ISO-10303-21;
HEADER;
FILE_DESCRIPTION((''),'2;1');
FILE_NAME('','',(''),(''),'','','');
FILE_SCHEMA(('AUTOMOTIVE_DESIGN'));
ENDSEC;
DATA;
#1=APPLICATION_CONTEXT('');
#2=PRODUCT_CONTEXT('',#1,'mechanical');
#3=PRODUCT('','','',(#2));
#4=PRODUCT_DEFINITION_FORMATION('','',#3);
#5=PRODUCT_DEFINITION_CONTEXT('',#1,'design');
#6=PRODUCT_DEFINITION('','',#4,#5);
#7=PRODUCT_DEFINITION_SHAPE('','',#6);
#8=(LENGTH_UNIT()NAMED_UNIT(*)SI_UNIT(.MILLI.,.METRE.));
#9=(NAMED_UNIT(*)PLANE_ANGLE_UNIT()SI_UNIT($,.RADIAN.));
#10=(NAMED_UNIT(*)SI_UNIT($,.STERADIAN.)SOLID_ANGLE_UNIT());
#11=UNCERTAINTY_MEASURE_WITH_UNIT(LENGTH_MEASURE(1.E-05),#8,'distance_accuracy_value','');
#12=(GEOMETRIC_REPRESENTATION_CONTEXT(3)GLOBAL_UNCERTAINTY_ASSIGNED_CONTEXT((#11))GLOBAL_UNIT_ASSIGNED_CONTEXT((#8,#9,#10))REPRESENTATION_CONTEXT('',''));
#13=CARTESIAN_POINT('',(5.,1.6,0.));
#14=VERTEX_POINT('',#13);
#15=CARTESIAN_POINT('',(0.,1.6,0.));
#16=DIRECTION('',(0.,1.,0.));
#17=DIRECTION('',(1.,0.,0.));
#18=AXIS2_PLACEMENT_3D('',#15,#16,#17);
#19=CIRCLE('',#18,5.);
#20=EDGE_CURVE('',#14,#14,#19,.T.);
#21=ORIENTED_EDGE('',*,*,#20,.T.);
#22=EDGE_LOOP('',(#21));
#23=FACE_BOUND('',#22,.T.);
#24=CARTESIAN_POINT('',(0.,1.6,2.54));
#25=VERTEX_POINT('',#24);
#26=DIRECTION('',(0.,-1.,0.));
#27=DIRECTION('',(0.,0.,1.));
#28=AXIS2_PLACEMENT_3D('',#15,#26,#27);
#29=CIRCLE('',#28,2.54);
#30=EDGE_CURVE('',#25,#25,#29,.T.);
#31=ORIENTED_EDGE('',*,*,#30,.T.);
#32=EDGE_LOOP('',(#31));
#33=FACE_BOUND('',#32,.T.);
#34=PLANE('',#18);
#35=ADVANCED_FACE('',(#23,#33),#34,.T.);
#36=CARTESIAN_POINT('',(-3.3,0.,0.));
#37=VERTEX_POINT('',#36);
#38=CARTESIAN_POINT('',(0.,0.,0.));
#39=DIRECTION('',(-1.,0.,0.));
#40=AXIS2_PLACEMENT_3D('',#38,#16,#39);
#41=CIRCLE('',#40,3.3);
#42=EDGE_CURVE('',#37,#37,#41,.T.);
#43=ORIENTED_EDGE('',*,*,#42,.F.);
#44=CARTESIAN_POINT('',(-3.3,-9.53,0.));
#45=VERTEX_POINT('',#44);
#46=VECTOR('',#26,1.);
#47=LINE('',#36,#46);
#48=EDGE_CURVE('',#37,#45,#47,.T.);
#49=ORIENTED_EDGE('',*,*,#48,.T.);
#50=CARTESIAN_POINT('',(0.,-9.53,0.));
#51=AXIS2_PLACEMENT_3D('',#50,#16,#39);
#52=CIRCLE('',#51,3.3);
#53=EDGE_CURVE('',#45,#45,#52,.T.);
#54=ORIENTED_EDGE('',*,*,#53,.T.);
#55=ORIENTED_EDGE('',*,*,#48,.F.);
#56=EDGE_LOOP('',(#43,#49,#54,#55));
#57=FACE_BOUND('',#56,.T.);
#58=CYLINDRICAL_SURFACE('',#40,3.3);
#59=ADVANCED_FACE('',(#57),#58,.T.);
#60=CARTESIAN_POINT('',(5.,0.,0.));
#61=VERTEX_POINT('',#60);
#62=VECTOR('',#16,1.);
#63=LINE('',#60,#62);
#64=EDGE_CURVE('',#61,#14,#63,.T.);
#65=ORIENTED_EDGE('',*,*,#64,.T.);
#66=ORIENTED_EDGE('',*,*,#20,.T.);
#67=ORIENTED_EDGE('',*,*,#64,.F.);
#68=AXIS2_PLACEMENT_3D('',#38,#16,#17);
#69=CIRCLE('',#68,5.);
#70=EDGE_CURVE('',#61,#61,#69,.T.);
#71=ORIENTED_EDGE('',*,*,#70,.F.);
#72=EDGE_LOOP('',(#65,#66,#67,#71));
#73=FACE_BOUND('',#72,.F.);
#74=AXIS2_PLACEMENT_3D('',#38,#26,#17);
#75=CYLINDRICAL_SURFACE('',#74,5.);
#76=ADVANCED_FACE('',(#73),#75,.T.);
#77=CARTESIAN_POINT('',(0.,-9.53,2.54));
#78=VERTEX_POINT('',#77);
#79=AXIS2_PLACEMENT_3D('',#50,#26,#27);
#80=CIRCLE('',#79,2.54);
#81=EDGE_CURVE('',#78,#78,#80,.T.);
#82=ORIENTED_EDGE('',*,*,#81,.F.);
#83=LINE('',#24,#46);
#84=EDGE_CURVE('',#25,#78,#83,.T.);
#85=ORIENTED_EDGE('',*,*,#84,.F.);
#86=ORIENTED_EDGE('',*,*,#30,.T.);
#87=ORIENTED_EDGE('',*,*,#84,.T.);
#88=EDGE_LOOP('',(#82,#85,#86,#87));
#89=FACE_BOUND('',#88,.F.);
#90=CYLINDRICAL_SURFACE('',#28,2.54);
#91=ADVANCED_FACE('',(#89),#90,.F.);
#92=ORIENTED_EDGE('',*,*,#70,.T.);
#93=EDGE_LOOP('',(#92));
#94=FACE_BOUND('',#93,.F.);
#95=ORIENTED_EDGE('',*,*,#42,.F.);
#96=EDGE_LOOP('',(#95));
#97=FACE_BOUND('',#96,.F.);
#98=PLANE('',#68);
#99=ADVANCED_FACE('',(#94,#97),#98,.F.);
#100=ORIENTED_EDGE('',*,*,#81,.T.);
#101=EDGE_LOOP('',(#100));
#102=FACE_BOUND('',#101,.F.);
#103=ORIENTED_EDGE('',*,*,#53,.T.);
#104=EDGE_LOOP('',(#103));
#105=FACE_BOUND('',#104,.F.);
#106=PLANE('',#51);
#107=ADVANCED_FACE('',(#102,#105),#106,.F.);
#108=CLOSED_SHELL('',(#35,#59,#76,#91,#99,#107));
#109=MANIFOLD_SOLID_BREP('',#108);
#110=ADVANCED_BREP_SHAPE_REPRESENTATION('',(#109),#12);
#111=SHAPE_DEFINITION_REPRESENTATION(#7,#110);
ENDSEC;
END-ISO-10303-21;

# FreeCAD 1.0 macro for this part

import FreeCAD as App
import Part
import Sketcher

V = App.Vector
Q = App.Units.Quantity

doc = App.newDocument("Part")
params = doc.addObject("Spreadsheet::Sheet", "Params")
for row, (alias, value) in enumerate([
    ("pad1_length", "0.3751969 in"),
    ("pad2_length", "0.0629921 in"),
    ("sketch3_diameter", "0.2 in"),
    ("hole_diameter", "0.2 in"),
], start=1):
    params.set(f"A{row}", alias)
    params.set(f"B{row}", "=" + value)
    params.setAlias(f"B{row}", alias)

body = doc.addObject("PartDesign::Body", "Body")

sketch1 = body.newObject("Sketcher::SketchObject", "Sketch")
sketch1.AttachmentSupport = (doc.getObject("XZ_Plane"), [""])
sketch1.MapMode = "FlatFace"
sketch1.addGeometry(Part.Circle(V(0, 0, 0), V(0, 0, 1), 3.3), False)
sketch1.addConstraint(Sketcher.Constraint("Coincident", 0, 3, -1, 1))
sketch1.addConstraint(Sketcher.Constraint("Diameter", 0, Q("6.6 mm")))
pad1 = body.newObject("PartDesign::Pad", "Pad")
pad1.Profile = sketch1
pad1.setExpression("Length", "Params.pad1_length")

sketch2 = body.newObject("Sketcher::SketchObject", "Sketch001")
sketch2.AttachmentSupport = (doc.getObject("XZ_Plane"), [""])
sketch2.MapMode = "FlatFace"
sketch2.addGeometry(Part.Circle(V(0, 0, 0), V(0, 0, 1), 5), False)
sketch2.addConstraint(Sketcher.Constraint("Coincident", 0, 3, -1, 1))
sketch2.addConstraint(Sketcher.Constraint("Diameter", 0, Q("0.3937 in")))
pad2 = body.newObject("PartDesign::Pad", "Pad001")
pad2.Profile = sketch2
pad2.setExpression("Length", "Params.pad2_length")
pad2.Reversed = True

sketch3 = body.newObject("Sketcher::SketchObject", "Sketch002")
sketch3.AttachmentSupport = (doc.getObject("XZ_Plane"), [""])
sketch3.MapMode = "FlatFace"
sketch3.AttachmentOffset = App.Placement(V(0, 0, -0.0629921 * 25.4), App.Rotation())
sketch3.addGeometry(Part.Circle(V(0, 0, 0), V(0, 0, 1), 2.5), False)
sketch3.addConstraint(Sketcher.Constraint("Coincident", 0, 3, -1, 1))
sketch3.addConstraint(Sketcher.Constraint("Diameter", 0, Q("0.2 in")))
sketch3.setExpression("Constraints[1]", "Params.sketch3_diameter")
doc.recompute()
hole = body.newObject("PartDesign::Hole", "Hole")
hole.Profile = sketch3
hole.ThreadType = "None"
hole.setExpression("Diameter", "Params.hole_diameter")
hole.DepthType = "ThroughAll"
hole.Reversed = True

doc.recompute()
